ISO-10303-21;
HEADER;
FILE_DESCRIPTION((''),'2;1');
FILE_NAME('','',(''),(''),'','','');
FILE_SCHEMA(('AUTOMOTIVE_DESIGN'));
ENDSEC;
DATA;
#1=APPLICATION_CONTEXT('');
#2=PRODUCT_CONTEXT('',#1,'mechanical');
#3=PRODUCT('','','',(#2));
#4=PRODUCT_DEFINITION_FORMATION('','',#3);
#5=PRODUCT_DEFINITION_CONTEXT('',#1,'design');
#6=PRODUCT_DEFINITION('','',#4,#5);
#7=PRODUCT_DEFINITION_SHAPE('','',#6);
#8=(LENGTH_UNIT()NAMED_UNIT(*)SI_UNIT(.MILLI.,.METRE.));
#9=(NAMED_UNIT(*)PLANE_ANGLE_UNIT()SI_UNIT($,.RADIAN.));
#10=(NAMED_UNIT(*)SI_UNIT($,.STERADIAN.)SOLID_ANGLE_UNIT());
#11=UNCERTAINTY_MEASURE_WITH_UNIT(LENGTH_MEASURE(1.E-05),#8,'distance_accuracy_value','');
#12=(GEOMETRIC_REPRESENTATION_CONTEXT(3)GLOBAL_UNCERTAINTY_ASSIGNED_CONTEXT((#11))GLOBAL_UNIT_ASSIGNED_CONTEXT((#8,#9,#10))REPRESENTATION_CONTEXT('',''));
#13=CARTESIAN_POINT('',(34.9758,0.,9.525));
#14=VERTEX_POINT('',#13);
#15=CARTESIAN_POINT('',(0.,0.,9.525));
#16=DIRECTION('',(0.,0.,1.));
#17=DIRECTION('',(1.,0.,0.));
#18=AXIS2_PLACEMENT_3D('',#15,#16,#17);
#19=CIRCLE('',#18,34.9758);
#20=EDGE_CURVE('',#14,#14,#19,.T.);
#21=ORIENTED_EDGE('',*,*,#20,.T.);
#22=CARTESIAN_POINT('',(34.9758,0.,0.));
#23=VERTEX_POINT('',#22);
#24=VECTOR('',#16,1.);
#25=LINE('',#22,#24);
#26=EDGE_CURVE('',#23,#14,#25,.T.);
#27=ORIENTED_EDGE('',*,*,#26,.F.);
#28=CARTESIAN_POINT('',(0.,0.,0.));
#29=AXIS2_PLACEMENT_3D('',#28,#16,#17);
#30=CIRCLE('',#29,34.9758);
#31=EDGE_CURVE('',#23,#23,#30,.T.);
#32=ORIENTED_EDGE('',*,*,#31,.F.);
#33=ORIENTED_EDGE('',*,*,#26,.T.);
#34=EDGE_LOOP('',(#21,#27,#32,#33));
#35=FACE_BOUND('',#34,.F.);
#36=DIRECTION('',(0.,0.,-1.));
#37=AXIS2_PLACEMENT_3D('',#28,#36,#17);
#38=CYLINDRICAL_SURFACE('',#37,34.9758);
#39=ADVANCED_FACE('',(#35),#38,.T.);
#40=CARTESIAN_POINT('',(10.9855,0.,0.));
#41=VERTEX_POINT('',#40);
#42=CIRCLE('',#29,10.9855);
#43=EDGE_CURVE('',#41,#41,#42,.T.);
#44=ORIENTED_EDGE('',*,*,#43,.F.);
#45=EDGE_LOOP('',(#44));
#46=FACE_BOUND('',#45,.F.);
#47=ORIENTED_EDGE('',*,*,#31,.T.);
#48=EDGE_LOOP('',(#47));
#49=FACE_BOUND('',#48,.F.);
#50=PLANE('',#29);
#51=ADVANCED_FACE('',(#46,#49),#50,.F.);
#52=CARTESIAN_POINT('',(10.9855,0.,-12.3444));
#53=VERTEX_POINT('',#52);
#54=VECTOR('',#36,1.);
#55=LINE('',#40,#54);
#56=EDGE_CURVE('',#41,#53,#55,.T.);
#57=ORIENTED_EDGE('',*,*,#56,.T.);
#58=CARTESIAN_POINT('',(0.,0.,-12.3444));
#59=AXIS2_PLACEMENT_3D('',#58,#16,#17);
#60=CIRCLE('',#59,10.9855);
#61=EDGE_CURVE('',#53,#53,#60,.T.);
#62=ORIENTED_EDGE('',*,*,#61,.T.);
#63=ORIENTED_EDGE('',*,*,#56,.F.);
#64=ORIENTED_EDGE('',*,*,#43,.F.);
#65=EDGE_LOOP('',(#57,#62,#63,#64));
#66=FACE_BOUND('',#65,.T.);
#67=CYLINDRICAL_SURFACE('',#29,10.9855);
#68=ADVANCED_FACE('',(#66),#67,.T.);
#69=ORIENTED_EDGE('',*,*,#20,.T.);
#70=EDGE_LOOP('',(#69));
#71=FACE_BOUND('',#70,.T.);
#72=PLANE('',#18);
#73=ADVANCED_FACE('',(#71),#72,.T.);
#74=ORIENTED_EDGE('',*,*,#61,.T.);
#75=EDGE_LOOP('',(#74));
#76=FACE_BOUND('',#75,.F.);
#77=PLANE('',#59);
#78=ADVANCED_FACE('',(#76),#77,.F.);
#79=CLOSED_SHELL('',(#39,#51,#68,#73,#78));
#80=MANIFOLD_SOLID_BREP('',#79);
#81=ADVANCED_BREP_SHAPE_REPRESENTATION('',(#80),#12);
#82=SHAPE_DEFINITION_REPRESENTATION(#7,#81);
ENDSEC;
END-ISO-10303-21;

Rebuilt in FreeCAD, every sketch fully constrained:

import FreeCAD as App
import Part
import Sketcher
from FreeCAD import Vector
Q = App.Units.Quantity

doc = App.newDocument("Part")
body = doc.addObject("PartDesign::Body", "Body")

sketch1 = doc.addObject("Sketcher::SketchObject", "Sketch")
body.addObject(sketch1)
sketch1.AttachmentSupport = (doc.XY_Plane, [""])
sketch1.MapMode = "FlatFace"
sketch1.addGeometry(Part.Circle(Vector(0, 0, 0), Vector(0, 0, 1), 34.9758), False)
sketch1.addConstraint([
    Sketcher.Constraint("Coincident", 0, 3, -1, 1),
    Sketcher.Constraint("Diameter", 0, Q("2.754 in")),
])
pad1 = doc.addObject("PartDesign::Pad", "Pad")
body.addObject(pad1)
pad1.Profile = sketch1
pad1.Length = Q("0.375 in")

sketch2 = doc.addObject("Sketcher::SketchObject", "Sketch001")
body.addObject(sketch2)
sketch2.AttachmentSupport = (doc.XY_Plane, [""])
sketch2.MapMode = "FlatFace"
sketch2.addGeometry(Part.Circle(Vector(0, 0, 0), Vector(0, 0, 1), 10.9855), False)
sketch2.addConstraint([
    Sketcher.Constraint("Coincident", 0, 3, -1, 1),
    Sketcher.Constraint("Diameter", 0, Q("0.865 in")),
])
pad2 = doc.addObject("PartDesign::Pad", "Pad001")
body.addObject(pad2)
pad2.Profile = sketch2
pad2.Length = Q("0.486 in")
pad2.Reversed = True

doc.recompute()
